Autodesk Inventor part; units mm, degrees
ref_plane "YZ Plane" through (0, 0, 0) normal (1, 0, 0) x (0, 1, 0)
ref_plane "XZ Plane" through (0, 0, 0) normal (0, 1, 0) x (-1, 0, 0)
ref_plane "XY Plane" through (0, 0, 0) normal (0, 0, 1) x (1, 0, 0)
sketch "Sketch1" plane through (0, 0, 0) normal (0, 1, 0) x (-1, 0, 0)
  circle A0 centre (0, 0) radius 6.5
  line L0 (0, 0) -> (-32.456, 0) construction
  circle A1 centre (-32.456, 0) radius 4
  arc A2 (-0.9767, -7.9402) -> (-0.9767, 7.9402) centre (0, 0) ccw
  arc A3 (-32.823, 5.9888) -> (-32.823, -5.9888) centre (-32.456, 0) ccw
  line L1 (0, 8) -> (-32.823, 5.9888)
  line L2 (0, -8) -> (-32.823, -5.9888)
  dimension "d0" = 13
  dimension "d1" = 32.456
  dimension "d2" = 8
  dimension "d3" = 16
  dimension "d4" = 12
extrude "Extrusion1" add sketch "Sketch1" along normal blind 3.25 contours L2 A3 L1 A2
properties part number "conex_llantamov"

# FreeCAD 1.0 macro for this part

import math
import FreeCAD as App
import Part
import Sketcher

V = App.Vector

doc = App.newDocument("Part")
body = doc.addObject("PartDesign::Body", "Body")

# Sketch on XZ plane
sketch1 = doc.addObject("Sketcher::SketchObject", "Sketch")
body.addObject(sketch1)
sketch1.AttachmentSupport = (doc.XZ_Plane, [""])
sketch1.MapMode = "FlatFace"
sketch1.addGeometry([
    Part.LineSegment(V(32.823, -5.9888, 0), V(0, -8, 0)),  # 0
    Part.ArcOfCircle(Part.Circle(V(0, 0, 0), V(0, 0, 1), 8.000045), math.radians(90), math.radians(270)),  # 1
    Part.LineSegment(V(0, 8, 0), V(32.823, 5.9888, 0)),  # 2
    Part.ArcOfCircle(Part.Circle(V(32.456, 0, 0), V(0, 0, 1), 6.000035), math.radians(-86.493239), math.radians(86.493239)),  # 3
    Part.Circle(V(32.456, 0, 0), V(0, 0, 1), 4),  # 4
    Part.Circle(V(0, 0, 0), V(0, 0, 1), 6.5),  # 5
], False)
sketch1.addConstraint([
    Sketcher.Constraint("Coincident", 0, 2, 1, 2),
    Sketcher.Constraint("Coincident", 1, 1, 2, 1),
    Sketcher.Constraint("Tangent", 2, 2, 3, 2),
    Sketcher.Constraint("Tangent", 3, 1, 0, 1),
    Sketcher.Constraint("Coincident", 1, 3, -1, 1),
    Sketcher.Constraint("Coincident", 5, 3, -1, 1),
    Sketcher.Constraint("Coincident", 4, 3, 3, 3),
    Sketcher.Constraint("Symmetric", 2, 2, 3, 1, -1),
    Sketcher.Constraint("PointOnObject", 0, 2, -2),
    Sketcher.Constraint("Diameter", 4, 8.0),
    Sketcher.Constraint("Diameter", 5, 13.0),
    Sketcher.Constraint("Radius", 1, 8.0),
    Sketcher.Constraint("Radius", 3, 6.0),
    Sketcher.Constraint("DistanceX", -1, 1, 3, 3, 32.456),
])
pad1 = doc.addObject("PartDesign::Pad", "Pad")
body.addObject(pad1)
pad1.Profile = sketch1
pad1.Length = 3.25
pad1.Reversed = True

doc.recompute()
